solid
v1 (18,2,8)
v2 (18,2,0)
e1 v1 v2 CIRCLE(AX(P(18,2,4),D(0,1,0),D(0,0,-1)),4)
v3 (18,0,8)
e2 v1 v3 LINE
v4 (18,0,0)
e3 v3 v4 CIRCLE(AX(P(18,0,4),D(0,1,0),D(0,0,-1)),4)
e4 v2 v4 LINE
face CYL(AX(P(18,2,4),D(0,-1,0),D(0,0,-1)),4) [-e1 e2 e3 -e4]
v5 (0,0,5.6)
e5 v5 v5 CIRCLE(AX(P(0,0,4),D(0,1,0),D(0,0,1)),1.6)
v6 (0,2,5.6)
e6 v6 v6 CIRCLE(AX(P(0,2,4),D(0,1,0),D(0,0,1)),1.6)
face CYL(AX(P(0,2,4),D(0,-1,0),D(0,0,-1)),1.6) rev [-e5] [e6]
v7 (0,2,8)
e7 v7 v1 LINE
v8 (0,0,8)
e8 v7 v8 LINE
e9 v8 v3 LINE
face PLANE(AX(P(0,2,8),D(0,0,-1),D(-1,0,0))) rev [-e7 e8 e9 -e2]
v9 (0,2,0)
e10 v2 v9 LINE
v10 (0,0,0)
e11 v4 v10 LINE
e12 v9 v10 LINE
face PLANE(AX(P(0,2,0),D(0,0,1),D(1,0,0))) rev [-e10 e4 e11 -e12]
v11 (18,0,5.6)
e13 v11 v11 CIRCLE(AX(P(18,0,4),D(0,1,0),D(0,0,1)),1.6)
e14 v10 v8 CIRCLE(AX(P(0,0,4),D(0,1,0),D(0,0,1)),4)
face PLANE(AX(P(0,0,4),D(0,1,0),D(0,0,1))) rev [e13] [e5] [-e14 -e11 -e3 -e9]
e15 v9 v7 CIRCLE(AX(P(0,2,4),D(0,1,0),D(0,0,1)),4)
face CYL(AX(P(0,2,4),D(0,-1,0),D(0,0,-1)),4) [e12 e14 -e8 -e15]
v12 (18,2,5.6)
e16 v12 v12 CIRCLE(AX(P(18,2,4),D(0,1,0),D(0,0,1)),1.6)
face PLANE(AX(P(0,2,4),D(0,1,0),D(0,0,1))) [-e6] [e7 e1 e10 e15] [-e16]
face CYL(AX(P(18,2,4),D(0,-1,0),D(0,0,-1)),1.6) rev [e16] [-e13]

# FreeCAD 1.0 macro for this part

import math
import FreeCAD as App
import Part
import Sketcher
Q = App.Units.Quantity

doc = App.newDocument("Part")
body = doc.addObject("PartDesign::Body", "Body")

# Sketch on XZ plane
sketch1 = body.newObject("Sketcher::SketchObject", "Sketch")
sketch1.AttachmentSupport = (doc.getObject("XZ_Plane"), [""])
sketch1.MapMode = "FlatFace"
sketch1.addGeometry([
    Part.LineSegment(App.Vector(18, 0, 0), App.Vector(0, 0, 0)),  # 0
    Part.ArcOfCircle(Part.Circle(App.Vector(0, 4, 0), App.Vector(0, 0, 1), 4), math.radians(90), math.radians(270)),  # 1
    Part.LineSegment(App.Vector(0, 8, 0), App.Vector(18, 8, 0)),  # 2
    Part.ArcOfCircle(Part.Circle(App.Vector(18, 4, 0), App.Vector(0, 0, 1), 4), math.radians(-90), math.radians(90)),  # 3
    Part.Circle(App.Vector(18, 4, 0), App.Vector(0, 0, 1), 1.6),  # 4
    Part.Circle(App.Vector(0, 4, 0), App.Vector(0, 0, 1), 1.6),  # 5
], False)
sketch1.addConstraint([
    Sketcher.Constraint("Tangent", 0, 2, 1, 2),
    Sketcher.Constraint("Tangent", 1, 1, 2, 1),
    Sketcher.Constraint("Tangent", 2, 2, 3, 2),
    Sketcher.Constraint("Tangent", 3, 1, 0, 1),
    Sketcher.Constraint("Horizontal", 0),
    Sketcher.Constraint("Horizontal", 2),
    Sketcher.Constraint("Coincident", 0, 2, -1, 1),
    Sketcher.Constraint("Coincident", 4, 3, 3, 3),
    Sketcher.Constraint("Coincident", 5, 3, 1, 3),
    Sketcher.Constraint("Equal", 4, 5),
    Sketcher.Constraint("Radius", 1, Q("4 mm")),
    Sketcher.Constraint("Diameter", 4, Q("3.2 mm")),
    Sketcher.Constraint("DistanceX", 0, 2, 0, 1, Q("18 mm")),
])
pad1 = body.newObject("PartDesign::Pad", "Pad")
pad1.Profile = sketch1
pad1.Length = 2
pad1.Reversed = True

doc.recompute()
